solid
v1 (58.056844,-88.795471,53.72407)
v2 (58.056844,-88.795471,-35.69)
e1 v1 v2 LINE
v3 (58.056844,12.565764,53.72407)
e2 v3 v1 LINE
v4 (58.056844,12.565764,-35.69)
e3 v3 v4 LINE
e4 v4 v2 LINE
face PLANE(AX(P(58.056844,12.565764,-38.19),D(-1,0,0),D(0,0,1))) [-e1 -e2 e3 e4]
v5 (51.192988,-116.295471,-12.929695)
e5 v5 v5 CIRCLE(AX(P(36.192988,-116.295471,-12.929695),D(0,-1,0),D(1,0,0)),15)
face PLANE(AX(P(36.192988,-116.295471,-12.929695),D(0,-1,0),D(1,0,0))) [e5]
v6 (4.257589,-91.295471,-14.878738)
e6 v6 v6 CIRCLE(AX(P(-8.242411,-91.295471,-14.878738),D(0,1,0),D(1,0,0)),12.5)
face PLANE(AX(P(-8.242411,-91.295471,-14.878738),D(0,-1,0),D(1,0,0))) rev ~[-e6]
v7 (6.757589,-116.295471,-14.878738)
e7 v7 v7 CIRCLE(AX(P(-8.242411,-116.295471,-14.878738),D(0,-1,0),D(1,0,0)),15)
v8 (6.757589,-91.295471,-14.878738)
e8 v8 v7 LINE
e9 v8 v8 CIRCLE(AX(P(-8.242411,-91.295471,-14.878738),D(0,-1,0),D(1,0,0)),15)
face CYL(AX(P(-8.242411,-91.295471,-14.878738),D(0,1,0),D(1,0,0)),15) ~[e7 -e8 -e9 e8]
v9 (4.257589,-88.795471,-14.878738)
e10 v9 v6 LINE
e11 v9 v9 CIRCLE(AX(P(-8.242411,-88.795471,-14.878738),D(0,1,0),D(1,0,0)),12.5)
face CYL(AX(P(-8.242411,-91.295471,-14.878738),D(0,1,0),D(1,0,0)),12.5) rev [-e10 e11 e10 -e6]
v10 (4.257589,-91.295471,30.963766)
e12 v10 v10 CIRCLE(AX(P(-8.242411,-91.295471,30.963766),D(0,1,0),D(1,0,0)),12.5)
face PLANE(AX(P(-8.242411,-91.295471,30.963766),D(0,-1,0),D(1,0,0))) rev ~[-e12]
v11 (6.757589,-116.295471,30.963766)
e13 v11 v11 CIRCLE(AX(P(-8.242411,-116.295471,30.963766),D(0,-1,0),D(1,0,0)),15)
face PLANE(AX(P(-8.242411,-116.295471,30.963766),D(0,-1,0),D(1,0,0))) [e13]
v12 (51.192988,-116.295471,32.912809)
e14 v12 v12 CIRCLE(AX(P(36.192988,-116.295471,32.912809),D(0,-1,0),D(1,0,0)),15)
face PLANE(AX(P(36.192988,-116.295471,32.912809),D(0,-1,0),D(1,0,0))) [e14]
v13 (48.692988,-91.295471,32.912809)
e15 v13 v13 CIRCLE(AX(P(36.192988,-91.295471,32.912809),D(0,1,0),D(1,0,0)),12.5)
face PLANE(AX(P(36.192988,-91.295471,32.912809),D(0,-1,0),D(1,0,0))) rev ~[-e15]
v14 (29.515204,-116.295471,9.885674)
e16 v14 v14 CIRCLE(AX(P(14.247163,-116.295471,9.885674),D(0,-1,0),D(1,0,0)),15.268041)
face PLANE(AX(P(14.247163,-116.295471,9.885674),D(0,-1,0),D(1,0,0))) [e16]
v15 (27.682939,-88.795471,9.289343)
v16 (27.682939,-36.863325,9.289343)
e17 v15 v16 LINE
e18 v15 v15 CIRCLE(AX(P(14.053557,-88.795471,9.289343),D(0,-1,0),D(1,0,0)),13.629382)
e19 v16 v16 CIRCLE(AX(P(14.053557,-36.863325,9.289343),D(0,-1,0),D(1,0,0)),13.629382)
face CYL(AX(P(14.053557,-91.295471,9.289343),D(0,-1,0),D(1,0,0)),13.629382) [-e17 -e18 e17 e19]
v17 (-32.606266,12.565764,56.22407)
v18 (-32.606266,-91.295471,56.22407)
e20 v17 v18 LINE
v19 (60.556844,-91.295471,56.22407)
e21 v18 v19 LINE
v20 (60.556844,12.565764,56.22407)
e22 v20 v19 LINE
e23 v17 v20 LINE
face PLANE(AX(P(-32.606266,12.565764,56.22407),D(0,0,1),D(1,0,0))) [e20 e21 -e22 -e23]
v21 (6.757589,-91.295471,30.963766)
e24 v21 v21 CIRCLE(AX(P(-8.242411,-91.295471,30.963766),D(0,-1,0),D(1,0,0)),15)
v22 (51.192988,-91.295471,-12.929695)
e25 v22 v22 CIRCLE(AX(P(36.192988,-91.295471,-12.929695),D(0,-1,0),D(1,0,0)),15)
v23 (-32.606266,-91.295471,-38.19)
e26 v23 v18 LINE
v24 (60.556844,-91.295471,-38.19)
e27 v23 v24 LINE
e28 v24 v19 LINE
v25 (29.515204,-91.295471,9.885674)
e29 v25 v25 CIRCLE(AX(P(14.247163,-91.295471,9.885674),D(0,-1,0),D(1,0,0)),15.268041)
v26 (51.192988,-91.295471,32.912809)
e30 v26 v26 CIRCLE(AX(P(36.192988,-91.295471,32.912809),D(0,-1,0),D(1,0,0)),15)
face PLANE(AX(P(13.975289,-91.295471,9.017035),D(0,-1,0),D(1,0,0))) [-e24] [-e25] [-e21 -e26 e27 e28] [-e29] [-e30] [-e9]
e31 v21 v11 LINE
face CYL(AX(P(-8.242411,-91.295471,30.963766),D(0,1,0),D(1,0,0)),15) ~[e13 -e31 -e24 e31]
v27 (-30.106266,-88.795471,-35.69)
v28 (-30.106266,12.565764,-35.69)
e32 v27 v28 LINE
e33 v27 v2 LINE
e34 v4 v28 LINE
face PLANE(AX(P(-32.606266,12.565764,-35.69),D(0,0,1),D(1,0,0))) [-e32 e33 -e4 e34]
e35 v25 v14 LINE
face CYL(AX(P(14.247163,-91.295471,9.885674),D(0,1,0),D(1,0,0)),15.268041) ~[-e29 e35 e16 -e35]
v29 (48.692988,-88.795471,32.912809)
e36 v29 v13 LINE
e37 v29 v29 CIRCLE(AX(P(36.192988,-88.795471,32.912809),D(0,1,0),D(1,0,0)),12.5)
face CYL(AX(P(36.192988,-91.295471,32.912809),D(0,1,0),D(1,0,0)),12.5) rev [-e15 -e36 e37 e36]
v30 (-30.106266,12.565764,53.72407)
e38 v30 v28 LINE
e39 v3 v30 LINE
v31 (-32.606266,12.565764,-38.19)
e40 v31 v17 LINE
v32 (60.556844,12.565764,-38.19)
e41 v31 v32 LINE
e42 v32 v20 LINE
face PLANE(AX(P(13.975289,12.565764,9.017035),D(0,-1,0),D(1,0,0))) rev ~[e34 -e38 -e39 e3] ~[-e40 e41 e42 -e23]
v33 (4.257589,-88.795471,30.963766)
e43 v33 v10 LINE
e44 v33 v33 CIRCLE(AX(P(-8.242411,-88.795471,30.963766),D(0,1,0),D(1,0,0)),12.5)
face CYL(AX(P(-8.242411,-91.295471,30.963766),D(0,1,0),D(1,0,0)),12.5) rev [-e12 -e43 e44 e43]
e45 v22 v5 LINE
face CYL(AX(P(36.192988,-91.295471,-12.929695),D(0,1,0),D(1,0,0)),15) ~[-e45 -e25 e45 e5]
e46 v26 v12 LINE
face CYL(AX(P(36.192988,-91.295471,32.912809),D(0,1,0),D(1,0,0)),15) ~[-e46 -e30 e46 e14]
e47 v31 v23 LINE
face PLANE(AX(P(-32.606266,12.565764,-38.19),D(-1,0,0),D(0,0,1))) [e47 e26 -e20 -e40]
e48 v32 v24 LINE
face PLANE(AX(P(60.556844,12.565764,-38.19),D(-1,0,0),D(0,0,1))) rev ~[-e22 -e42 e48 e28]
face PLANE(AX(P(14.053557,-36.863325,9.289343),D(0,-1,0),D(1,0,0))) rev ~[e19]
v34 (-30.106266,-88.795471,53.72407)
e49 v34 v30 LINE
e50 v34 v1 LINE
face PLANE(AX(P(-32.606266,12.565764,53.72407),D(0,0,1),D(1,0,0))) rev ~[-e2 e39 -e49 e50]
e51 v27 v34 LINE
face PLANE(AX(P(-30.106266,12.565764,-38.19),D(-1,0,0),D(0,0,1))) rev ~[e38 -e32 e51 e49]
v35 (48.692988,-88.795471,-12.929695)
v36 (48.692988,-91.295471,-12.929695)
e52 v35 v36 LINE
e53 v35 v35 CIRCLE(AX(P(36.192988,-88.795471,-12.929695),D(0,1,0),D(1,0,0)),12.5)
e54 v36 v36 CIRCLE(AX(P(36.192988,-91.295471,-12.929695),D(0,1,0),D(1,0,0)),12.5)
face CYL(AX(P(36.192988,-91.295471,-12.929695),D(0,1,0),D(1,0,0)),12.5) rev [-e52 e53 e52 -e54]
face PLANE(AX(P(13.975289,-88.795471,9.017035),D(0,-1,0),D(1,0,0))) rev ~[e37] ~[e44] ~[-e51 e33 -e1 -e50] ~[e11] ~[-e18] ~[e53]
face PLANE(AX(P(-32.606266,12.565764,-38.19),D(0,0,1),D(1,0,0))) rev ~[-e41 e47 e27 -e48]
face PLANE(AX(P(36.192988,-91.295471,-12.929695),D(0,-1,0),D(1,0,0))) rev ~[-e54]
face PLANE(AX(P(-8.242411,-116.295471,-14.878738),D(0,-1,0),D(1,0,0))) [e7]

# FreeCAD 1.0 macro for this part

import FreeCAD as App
import Part
import Sketcher

V = App.Vector


def faces_at(feature, points):
    """Names of the faces that lie closest to the given points."""
    faces = feature.Shape.Faces
    near = lambda p: min(range(len(faces)), key=lambda i: faces[i].distToShape(Part.Vertex(*p))[0])
    return sorted({f"Face{near(p) + 1}" for p in points})


def add_polygon(sketch, points):
    """Adds a closed chain of lines whose ends are joined by coincident constraints."""
    first, n = sketch.GeometryCount, len(points)
    for a, b in zip(points, points[1:] + points[:1]):
        sketch.addGeometry(Part.LineSegment(App.Vector(*a, 0), App.Vector(*b, 0)), False)
    for i in range(n):
        sketch.addConstraint(Sketcher.Constraint("Coincident", first + i, 2, first + (i + 1) % n, 1))

doc = App.newDocument("Part")
body = doc.addObject("PartDesign::Body", "Body")

# Sketch on XZ plane
sketch1 = doc.addObject("Sketcher::SketchObject", "Sketch")
body.addObject(sketch1)
sketch1.AttachmentSupport = (doc.XZ_Plane, [""])
sketch1.MapMode = "FlatFace"
sketch1.AttachmentOffset = App.Placement(V(0, 0, -12.565764), App.Rotation())
add_polygon(sketch1, [(-33, 56), (-33, -38), (61, -38), (61, 56)])  # lines 0-3
sketch1.addConstraint(Sketcher.Constraint("Vertical", 0))
sketch1.addConstraint(Sketcher.Constraint("Horizontal", 1))
sketch1.addConstraint(Sketcher.Constraint("Vertical", 2))
sketch1.addConstraint(Sketcher.Constraint("Horizontal", 3))
sketch1.addConstraint(Sketcher.Constraint("DistanceY", 0, 2, -1, 1, 38.19))
sketch1.addConstraint(Sketcher.Constraint("DistanceX", 1, 1, 1, 2, 93.16311))
sketch1.addConstraint(Sketcher.Constraint("DistanceY", 0, 2, 0, 1, 94.41407))
sketch1.addConstraint(Sketcher.Constraint("DistanceX", 0, 2, -1, 1, 32.606266))
pad1 = doc.addObject("PartDesign::Pad", "Pad")
body.addObject(pad1)
pad1.Profile = sketch1
pad1.Length = 103.861235

# Sketch on XZ plane
sketch2 = doc.addObject("Sketcher::SketchObject", "Sketch001")
body.addObject(sketch2)
sketch2.AttachmentSupport = (doc.XZ_Plane, [""])
sketch2.MapMode = "FlatFace"
sketch2.AttachmentOffset = App.Placement(V(0, 0, 91.295471), App.Rotation())
sketch2.addGeometry(Part.Circle(V(36, 33, 0), V(0, 0, 1), 15), False)
sketch2.addGeometry(Part.Circle(V(36, -13, 0), V(0, 0, 1), 15), False)
sketch2.addGeometry(Part.Circle(V(-8, -15, 0), V(0, 0, 1), 15), False)
sketch2.addGeometry(Part.Circle(V(-8, 31, 0), V(0, 0, 1), 15), False)
sketch2.addConstraint(Sketcher.Constraint("Equal", 0, 1))
sketch2.addConstraint(Sketcher.Constraint("Equal", 1, 2))
sketch2.addConstraint(Sketcher.Constraint("Equal", 2, 3))
sketch2.addConstraint(Sketcher.Constraint("Vertical", 0, 3, 1, 3))
sketch2.addConstraint(Sketcher.Constraint("Vertical", 2, 3, 3, 3))
sketch2.addConstraint(Sketcher.Constraint("Diameter", 0, 30.0))
sketch2.addConstraint(Sketcher.Constraint("DistanceX", 2, 3, 1, 3, 44.435399))
sketch2.addConstraint(Sketcher.Constraint("DistanceX", -1, 1, 0, 3, 36.192988))
sketch2.addConstraint(Sketcher.Constraint("DistanceY", -1, 1, 0, 3, 32.912809))
sketch2.addConstraint(Sketcher.Constraint("DistanceY", 2, 3, -1, 1, 14.878738))
sketch2.addConstraint(Sketcher.Constraint("DistanceY", 1, 3, 3, 3, 43.893462))
sketch2.addConstraint(Sketcher.Constraint("DistanceY", 1, 3, -1, 1, 12.929695))
pad2 = doc.addObject("PartDesign::Pad", "Pad001")
body.addObject(pad2)
pad2.Profile = sketch2
pad2.Length = 25
doc.recompute()

thickness = doc.addObject("PartDesign::Thickness", "Thickness")
body.addObject(thickness)
thickness.Base = (pad2, faces_at(pad2, [(13.975, 12.566, 9.017)]))
thickness.Value = 2.5
thickness.Reversed = True
thickness.Join = "Intersection"

# Sketch on XZ plane
sketch3 = doc.addObject("Sketcher::SketchObject", "Sketch002")
body.addObject(sketch3)
sketch3.AttachmentSupport = (doc.XZ_Plane, [""])
sketch3.MapMode = "FlatFace"
sketch3.AttachmentOffset = App.Placement(V(0, 0, 91.295471), App.Rotation())
sketch3.addGeometry(Part.Circle(V(36, 33, 0), V(0, 0, 1), 15), False)
sketch3.addGeometry(Part.Circle(V(36, -13, 0), V(0, 0, 1), 15), False)
sketch3.addGeometry(Part.Circle(V(-8, -15, 0), V(0, 0, 1), 15), False)
sketch3.addGeometry(Part.Circle(V(-8, 31, 0), V(0, 0, 1), 15), False)
sketch3.addConstraint(Sketcher.Constraint("Equal", 0, 1))
sketch3.addConstraint(Sketcher.Constraint("Equal", 1, 2))
sketch3.addConstraint(Sketcher.Constraint("Equal", 2, 3))
sketch3.addConstraint(Sketcher.Constraint("Vertical", 0, 3, 1, 3))
sketch3.addConstraint(Sketcher.Constraint("Vertical", 2, 3, 3, 3))
sketch3.addConstraint(Sketcher.Constraint("Diameter", 0, 30.0))
sketch3.addConstraint(Sketcher.Constraint("DistanceX", 2, 3, 1, 3, 44.435399))
sketch3.addConstraint(Sketcher.Constraint("DistanceX", -1, 1, 0, 3, 36.192988))
sketch3.addConstraint(Sketcher.Constraint("DistanceY", -1, 1, 0, 3, 32.912809))
sketch3.addConstraint(Sketcher.Constraint("DistanceY", 2, 3, -1, 1, 14.878738))
sketch3.addConstraint(Sketcher.Constraint("DistanceY", 1, 3, 3, 3, 43.893462))
sketch3.addConstraint(Sketcher.Constraint("DistanceY", 1, 3, -1, 1, 12.929695))
pad3 = doc.addObject("PartDesign::Pad", "Pad002")
body.addObject(pad3)
pad3.Profile = sketch3
pad3.Length = 25

# Sketch on XZ plane
sketch4 = doc.addObject("Sketcher::SketchObject", "Sketch003")
body.addObject(sketch4)
sketch4.AttachmentSupport = (doc.XZ_Plane, [""])
sketch4.MapMode = "FlatFace"
sketch4.AttachmentOffset = App.Placement(V(0, 0, 91.295471), App.Rotation())
sketch4.addGeometry(Part.Circle(V(14, 10, 0), V(0, 0, 1), 15), False)
sketch4.addConstraint(Sketcher.Constraint("Diameter", 0, 30.536082))
sketch4.addConstraint(Sketcher.Constraint("DistanceX", -1, 1, 0, 3, 14.247163))
sketch4.addConstraint(Sketcher.Constraint("DistanceY", -1, 1, 0, 3, 9.885674))
pad4 = doc.addObject("PartDesign::Pad", "Pad003")
body.addObject(pad4)
pad4.Profile = sketch4
pad4.Length = 25

# Sketch on XZ plane
sketch5 = doc.addObject("Sketcher::SketchObject", "Sketch004")
body.addObject(sketch5)
sketch5.AttachmentSupport = (doc.XZ_Plane, [""])
sketch5.MapMode = "FlatFace"
sketch5.AttachmentOffset = App.Placement(V(0, 0, 91.295471), App.Rotation())
sketch5.addGeometry(Part.Circle(V(14, 9, 0), V(0, 0, 1), 14), False)
sketch5.addConstraint(Sketcher.Constraint("Diameter", 0, 27.258764))
sketch5.addConstraint(Sketcher.Constraint("DistanceX", -1, 1, 0, 3, 14.053557))
sketch5.addConstraint(Sketcher.Constraint("DistanceY", -1, 1, 0, 3, 9.289343))
pad5 = doc.addObject("PartDesign::Pad", "Pad004")
body.addObject(pad5)
pad5.Profile = sketch5
pad5.Length = 54.432146
pad5.Reversed = True

doc.recompute()
